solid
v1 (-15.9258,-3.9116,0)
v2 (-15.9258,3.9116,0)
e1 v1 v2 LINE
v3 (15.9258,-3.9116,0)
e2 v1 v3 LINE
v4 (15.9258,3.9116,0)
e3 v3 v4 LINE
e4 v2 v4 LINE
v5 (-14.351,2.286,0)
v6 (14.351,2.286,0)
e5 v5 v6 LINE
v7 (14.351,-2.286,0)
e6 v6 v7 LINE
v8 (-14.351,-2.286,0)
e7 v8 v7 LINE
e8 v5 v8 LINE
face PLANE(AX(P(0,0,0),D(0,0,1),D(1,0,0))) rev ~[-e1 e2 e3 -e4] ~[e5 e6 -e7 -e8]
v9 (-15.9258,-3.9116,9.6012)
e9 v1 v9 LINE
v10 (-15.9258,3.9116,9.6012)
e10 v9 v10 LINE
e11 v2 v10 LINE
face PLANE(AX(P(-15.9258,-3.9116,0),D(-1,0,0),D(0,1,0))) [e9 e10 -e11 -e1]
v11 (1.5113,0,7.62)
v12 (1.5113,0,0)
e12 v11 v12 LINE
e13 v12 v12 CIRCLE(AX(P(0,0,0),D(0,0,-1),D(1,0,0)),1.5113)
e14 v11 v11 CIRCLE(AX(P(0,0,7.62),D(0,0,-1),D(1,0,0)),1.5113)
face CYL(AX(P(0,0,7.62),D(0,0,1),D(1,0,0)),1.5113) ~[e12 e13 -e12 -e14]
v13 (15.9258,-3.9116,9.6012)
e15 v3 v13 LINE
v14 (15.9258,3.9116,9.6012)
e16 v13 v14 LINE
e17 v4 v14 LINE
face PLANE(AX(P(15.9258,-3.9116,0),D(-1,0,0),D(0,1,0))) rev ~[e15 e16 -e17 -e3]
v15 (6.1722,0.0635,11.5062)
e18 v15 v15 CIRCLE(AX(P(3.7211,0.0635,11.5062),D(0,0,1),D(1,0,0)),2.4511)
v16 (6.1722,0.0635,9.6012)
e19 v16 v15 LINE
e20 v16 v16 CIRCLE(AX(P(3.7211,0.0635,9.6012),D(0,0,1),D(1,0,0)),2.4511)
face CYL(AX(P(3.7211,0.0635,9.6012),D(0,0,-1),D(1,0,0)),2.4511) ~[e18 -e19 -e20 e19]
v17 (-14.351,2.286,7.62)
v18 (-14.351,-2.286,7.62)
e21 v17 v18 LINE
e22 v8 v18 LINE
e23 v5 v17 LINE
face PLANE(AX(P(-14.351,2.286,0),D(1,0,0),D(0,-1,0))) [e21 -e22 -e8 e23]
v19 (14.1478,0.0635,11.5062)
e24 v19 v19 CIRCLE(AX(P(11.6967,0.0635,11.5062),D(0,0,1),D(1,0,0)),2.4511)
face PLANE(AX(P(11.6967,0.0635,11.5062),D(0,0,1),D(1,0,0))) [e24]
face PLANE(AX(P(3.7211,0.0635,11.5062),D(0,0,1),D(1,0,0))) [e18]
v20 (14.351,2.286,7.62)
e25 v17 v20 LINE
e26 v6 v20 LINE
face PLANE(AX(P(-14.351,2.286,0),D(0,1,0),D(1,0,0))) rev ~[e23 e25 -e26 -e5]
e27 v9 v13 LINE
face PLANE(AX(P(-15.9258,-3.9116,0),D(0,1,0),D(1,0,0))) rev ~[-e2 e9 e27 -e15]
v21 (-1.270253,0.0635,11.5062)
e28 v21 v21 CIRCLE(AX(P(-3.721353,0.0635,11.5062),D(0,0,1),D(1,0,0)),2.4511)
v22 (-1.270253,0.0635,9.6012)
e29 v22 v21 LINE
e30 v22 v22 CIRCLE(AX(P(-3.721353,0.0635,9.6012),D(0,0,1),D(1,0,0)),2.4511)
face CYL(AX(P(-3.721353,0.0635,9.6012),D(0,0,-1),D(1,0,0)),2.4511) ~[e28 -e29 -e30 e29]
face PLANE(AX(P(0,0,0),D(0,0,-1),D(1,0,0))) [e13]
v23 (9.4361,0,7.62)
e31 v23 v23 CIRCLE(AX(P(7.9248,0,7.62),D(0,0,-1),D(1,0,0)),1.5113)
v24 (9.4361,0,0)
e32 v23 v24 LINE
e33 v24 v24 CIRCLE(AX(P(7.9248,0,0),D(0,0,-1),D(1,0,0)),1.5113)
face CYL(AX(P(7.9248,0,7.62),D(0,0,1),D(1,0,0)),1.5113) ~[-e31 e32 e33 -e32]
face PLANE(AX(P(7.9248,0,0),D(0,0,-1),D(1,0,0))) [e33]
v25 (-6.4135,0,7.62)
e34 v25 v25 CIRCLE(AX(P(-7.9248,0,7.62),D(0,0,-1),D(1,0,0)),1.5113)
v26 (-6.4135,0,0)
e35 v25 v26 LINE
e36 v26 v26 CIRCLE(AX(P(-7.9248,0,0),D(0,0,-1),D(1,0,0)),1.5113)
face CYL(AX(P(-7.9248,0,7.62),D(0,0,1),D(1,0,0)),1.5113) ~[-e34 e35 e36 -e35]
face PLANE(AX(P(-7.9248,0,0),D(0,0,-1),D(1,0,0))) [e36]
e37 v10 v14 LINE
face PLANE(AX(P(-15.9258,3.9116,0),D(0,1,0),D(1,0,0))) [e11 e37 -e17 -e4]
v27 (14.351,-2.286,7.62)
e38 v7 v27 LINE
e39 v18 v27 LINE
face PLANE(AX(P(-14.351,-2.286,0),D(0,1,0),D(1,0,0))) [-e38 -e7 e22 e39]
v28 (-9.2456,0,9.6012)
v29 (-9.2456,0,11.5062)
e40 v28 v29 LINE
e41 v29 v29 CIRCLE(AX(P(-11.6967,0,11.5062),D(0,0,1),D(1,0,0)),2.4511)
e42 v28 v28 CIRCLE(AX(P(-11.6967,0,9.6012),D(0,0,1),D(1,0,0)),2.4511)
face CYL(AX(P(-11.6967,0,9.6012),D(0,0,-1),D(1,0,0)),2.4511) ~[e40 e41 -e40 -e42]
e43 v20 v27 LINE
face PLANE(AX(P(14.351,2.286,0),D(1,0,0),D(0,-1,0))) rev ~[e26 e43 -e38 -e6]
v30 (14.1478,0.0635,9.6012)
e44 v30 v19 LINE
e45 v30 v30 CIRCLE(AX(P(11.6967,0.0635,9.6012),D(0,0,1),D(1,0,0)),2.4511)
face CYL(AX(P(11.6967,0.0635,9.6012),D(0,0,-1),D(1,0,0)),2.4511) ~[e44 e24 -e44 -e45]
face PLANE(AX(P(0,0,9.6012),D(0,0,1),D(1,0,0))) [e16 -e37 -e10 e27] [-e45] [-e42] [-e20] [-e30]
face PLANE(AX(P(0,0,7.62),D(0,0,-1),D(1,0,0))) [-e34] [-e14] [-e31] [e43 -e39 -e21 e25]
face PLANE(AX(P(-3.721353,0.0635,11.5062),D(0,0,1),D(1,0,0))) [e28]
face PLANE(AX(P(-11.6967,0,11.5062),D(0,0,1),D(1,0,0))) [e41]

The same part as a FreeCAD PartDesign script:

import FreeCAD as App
import Part
import Sketcher

V = App.Vector
Q = App.Units.Quantity

doc = App.newDocument("Part")
params = doc.addObject("Spreadsheet::Sheet", "Params")
for row, (alias, value) in enumerate([
    ("sketch1_width", "1.254 in"),
    ("sketch1_height", "0.308 in"),
    ("pad1_length", "0.378 in"),
    ("sketch2_diameter", "0.193 in"),
    ("pad2_length", "0.075 in"),
    ("sketch3_diameter", "0.193 in"),
    ("pad3_length", "0.075 in"),
    ("sketch4_diameter", "0.193 in"),
    ("pad4_length", "0.075 in"),
    ("sketch5_width", "1.13 in"),
    ("sketch5_height", "0.18 in"),
    ("pocket1_length", "0.3 in"),
    ("sketch6_diameter", "0.119 in"),
    ("pad5_length", "0.3 in"),
], start=1):
    params.set(f"A{row}", alias)
    params.set(f"B{row}", "=" + value)
    params.setAlias(f"B{row}", alias)

body = doc.addObject("PartDesign::Body", "Body")

# Sketch on XY plane
sketch1 = body.newObject("Sketcher::SketchObject", "Sketch")
sketch1.AttachmentSupport = (doc.getObject("XY_Plane"), [""])
sketch1.MapMode = "FlatFace"
sketch1.addGeometry(Part.LineSegment(V(-16, 4, 0), V(-16, -4, 0)), False)
sketch1.addGeometry(Part.LineSegment(V(-16, -4, 0), V(16, -4, 0)), False)
sketch1.addGeometry(Part.LineSegment(V(16, -4, 0), V(16, 4, 0)), False)
sketch1.addGeometry(Part.LineSegment(V(16, 4, 0), V(-16, 4, 0)), False)
sketch1.addConstraint(Sketcher.Constraint("Coincident", 0, 2, 1, 1))
sketch1.addConstraint(Sketcher.Constraint("Coincident", 1, 2, 2, 1))
sketch1.addConstraint(Sketcher.Constraint("Coincident", 2, 2, 3, 1))
sketch1.addConstraint(Sketcher.Constraint("Coincident", 3, 2, 0, 1))
sketch1.addConstraint(Sketcher.Constraint("Vertical", 0))
sketch1.addConstraint(Sketcher.Constraint("Horizontal", 1))
sketch1.addConstraint(Sketcher.Constraint("Vertical", 2))
sketch1.addConstraint(Sketcher.Constraint("Horizontal", 3))
sketch1.addConstraint(Sketcher.Constraint("Symmetric", 0, 2, 2, 2, -1, 1))
sketch1.addConstraint(Sketcher.Constraint("DistanceX", 1, 1, 1, 2, Q("1.254 in")))
sketch1.addConstraint(Sketcher.Constraint("DistanceY", 0, 2, 0, 1, Q("0.308 in")))
sketch1.setExpression("Constraints[9]", "Params.sketch1_width")
sketch1.setExpression("Constraints[10]", "Params.sketch1_height")
pad1 = body.newObject("PartDesign::Pad", "Pad")
pad1.Profile = sketch1
pad1.setExpression("Length", "Params.pad1_length")

# Sketch on XY plane
sketch2 = body.newObject("Sketcher::SketchObject", "Sketch001")
sketch2.AttachmentSupport = (doc.getObject("XY_Plane"), [""])
sketch2.MapMode = "FlatFace"
sketch2.AttachmentOffset = App.Placement(V(0, 0, 0.378 * 25.4), App.Rotation())
sketch2.addGeometry(Part.Circle(V(-11.7, 0, 0), V(0, 0, 1), 2.5), False)
sketch2.addConstraint(Sketcher.Constraint("PointOnObject", 0, 3, -1))
sketch2.addConstraint(Sketcher.Constraint("Diameter", 0, Q("0.193 in")))
sketch2.addConstraint(Sketcher.Constraint("DistanceX", 0, 3, -1, 1, Q("0.4605 in")))
sketch2.setExpression("Constraints[1]", "Params.sketch2_diameter")
pad2 = body.newObject("PartDesign::Pad", "Pad001")
pad2.Profile = sketch2
pad2.setExpression("Length", "Params.pad2_length")

# Sketch on XY plane
sketch3 = body.newObject("Sketcher::SketchObject", "Sketch002")
sketch3.AttachmentSupport = (doc.getObject("XY_Plane"), [""])
sketch3.MapMode = "FlatFace"
sketch3.AttachmentOffset = App.Placement(V(0, 0, 0.378 * 25.4), App.Rotation())
sketch3.addGeometry(Part.Circle(V(11.7, 0.1, 0), V(0, 0, 1), 2.5), False)
sketch3.addConstraint(Sketcher.Constraint("Diameter", 0, Q("0.193 in")))
sketch3.addConstraint(Sketcher.Constraint("DistanceX", -1, 1, 0, 3, Q("0.4605 in")))
sketch3.addConstraint(Sketcher.Constraint("DistanceY", -1, 1, 0, 3, Q("0.0025 in")))
sketch3.setExpression("Constraints[0]", "Params.sketch3_diameter")
pad3 = body.newObject("PartDesign::Pad", "Pad002")
pad3.Profile = sketch3
pad3.setExpression("Length", "Params.pad3_length")

# Sketch on XY plane
sketch4 = body.newObject("Sketcher::SketchObject", "Sketch003")
sketch4.AttachmentSupport = (doc.getObject("XY_Plane"), [""])
sketch4.MapMode = "FlatFace"
sketch4.AttachmentOffset = App.Placement(V(0, 0, 0.378 * 25.4), App.Rotation())
sketch4.addGeometry(Part.Circle(V(-3.7, 0.1, 0), V(0, 0, 1), 2.5), False)
sketch4.addGeometry(Part.Circle(V(3.7, 0.1, 0), V(0, 0, 1), 2.5), False)
sketch4.addConstraint(Sketcher.Constraint("Equal", 0, 1))
sketch4.addConstraint(Sketcher.Constraint("Horizontal", 0, 3, 1, 3))
sketch4.addConstraint(Sketcher.Constraint("Diameter", 0, Q("0.193 in")))
sketch4.addConstraint(Sketcher.Constraint("DistanceY", -1, 1, 0, 3, Q("0.0025 in")))
sketch4.addConstraint(Sketcher.Constraint("DistanceX", -1, 1, 1, 3, Q("0.1465 in")))
sketch4.addConstraint(Sketcher.Constraint("DistanceX", 0, 3, -1, 1, Q("3.721353 mm")))
sketch4.setExpression("Constraints[2]", "Params.sketch4_diameter")
pad4 = body.newObject("PartDesign::Pad", "Pad003")
pad4.Profile = sketch4
pad4.setExpression("Length", "Params.pad4_length")

# Sketch on XY plane
sketch5 = body.newObject("Sketcher::SketchObject", "Sketch004")
sketch5.AttachmentSupport = (doc.getObject("XY_Plane"), [""])
sketch5.MapMode = "FlatFace"
sketch5.addGeometry(Part.LineSegment(V(-14.4, -2.3, 0), V(-14.4, 2.3, 0)), False)
sketch5.addGeometry(Part.LineSegment(V(-14.4, 2.3, 0), V(14.4, 2.3, 0)), False)
sketch5.addGeometry(Part.LineSegment(V(14.4, 2.3, 0), V(14.4, -2.3, 0)), False)
sketch5.addGeometry(Part.LineSegment(V(14.4, -2.3, 0), V(-14.4, -2.3, 0)), False)
sketch5.addConstraint(Sketcher.Constraint("Coincident", 0, 2, 1, 1))
sketch5.addConstraint(Sketcher.Constraint("Coincident", 1, 2, 2, 1))
sketch5.addConstraint(Sketcher.Constraint("Coincident", 2, 2, 3, 1))
sketch5.addConstraint(Sketcher.Constraint("Coincident", 3, 2, 0, 1))
sketch5.addConstraint(Sketcher.Constraint("Vertical", 0))
sketch5.addConstraint(Sketcher.Constraint("Horizontal", 1))
sketch5.addConstraint(Sketcher.Constraint("Vertical", 2))
sketch5.addConstraint(Sketcher.Constraint("Horizontal", 3))
sketch5.addConstraint(Sketcher.Constraint("Symmetric", 0, 2, 2, 2, -1, 1))
sketch5.addConstraint(Sketcher.Constraint("DistanceX", 1, 1, 1, 2, Q("1.13 in")))
sketch5.addConstraint(Sketcher.Constraint("DistanceY", 0, 1, 0, 2, Q("0.18 in")))
sketch5.setExpression("Constraints[9]", "Params.sketch5_width")
sketch5.setExpression("Constraints[10]", "Params.sketch5_height")
pocket1 = body.newObject("PartDesign::Pocket", "Pocket")
pocket1.Profile = sketch5
pocket1.setExpression("Length", "Params.pocket1_length")
pocket1.Reversed = True

# Sketch on XY plane
sketch6 = body.newObject("Sketcher::SketchObject", "Sketch005")
sketch6.AttachmentSupport = (doc.getObject("XY_Plane"), [""])
sketch6.MapMode = "FlatFace"
sketch6.AttachmentOffset = App.Placement(V(0, 0, 0.3 * 25.4), App.Rotation())
sketch6.addGeometry(Part.Circle(V(0, 0, 0), V(0, 0, 1), 1.5), False)
sketch6.addGeometry(Part.Circle(V(-7.9, 0, 0), V(0, 0, 1), 1.5), False)
sketch6.addGeometry(Part.Circle(V(7.9, 0, 0), V(0, 0, 1), 1.5), False)
sketch6.addConstraint(Sketcher.Constraint("Coincident", 0, 3, -1, 1))
sketch6.addConstraint(Sketcher.Constraint("Equal", 0, 1))
sketch6.addConstraint(Sketcher.Constraint("Equal", 1, 2))
sketch6.addConstraint(Sketcher.Constraint("Symmetric", 1, 3, 2, 3, -1, 1))
sketch6.addConstraint(Sketcher.Constraint("PointOnObject", 1, 3, -1))
sketch6.addConstraint(Sketcher.Constraint("Diameter", 0, Q("0.119 in")))
sketch6.addConstraint(Sketcher.Constraint("DistanceX", 1, 3, -1, 1, Q("0.312 in")))
sketch6.setExpression("Constraints[5]", "Params.sketch6_diameter")
pad5 = body.newObject("PartDesign::Pad", "Pad004")
pad5.Profile = sketch6
pad5.setExpression("Length", "Params.pad5_length")
pad5.Reversed = True

doc.recompute()
